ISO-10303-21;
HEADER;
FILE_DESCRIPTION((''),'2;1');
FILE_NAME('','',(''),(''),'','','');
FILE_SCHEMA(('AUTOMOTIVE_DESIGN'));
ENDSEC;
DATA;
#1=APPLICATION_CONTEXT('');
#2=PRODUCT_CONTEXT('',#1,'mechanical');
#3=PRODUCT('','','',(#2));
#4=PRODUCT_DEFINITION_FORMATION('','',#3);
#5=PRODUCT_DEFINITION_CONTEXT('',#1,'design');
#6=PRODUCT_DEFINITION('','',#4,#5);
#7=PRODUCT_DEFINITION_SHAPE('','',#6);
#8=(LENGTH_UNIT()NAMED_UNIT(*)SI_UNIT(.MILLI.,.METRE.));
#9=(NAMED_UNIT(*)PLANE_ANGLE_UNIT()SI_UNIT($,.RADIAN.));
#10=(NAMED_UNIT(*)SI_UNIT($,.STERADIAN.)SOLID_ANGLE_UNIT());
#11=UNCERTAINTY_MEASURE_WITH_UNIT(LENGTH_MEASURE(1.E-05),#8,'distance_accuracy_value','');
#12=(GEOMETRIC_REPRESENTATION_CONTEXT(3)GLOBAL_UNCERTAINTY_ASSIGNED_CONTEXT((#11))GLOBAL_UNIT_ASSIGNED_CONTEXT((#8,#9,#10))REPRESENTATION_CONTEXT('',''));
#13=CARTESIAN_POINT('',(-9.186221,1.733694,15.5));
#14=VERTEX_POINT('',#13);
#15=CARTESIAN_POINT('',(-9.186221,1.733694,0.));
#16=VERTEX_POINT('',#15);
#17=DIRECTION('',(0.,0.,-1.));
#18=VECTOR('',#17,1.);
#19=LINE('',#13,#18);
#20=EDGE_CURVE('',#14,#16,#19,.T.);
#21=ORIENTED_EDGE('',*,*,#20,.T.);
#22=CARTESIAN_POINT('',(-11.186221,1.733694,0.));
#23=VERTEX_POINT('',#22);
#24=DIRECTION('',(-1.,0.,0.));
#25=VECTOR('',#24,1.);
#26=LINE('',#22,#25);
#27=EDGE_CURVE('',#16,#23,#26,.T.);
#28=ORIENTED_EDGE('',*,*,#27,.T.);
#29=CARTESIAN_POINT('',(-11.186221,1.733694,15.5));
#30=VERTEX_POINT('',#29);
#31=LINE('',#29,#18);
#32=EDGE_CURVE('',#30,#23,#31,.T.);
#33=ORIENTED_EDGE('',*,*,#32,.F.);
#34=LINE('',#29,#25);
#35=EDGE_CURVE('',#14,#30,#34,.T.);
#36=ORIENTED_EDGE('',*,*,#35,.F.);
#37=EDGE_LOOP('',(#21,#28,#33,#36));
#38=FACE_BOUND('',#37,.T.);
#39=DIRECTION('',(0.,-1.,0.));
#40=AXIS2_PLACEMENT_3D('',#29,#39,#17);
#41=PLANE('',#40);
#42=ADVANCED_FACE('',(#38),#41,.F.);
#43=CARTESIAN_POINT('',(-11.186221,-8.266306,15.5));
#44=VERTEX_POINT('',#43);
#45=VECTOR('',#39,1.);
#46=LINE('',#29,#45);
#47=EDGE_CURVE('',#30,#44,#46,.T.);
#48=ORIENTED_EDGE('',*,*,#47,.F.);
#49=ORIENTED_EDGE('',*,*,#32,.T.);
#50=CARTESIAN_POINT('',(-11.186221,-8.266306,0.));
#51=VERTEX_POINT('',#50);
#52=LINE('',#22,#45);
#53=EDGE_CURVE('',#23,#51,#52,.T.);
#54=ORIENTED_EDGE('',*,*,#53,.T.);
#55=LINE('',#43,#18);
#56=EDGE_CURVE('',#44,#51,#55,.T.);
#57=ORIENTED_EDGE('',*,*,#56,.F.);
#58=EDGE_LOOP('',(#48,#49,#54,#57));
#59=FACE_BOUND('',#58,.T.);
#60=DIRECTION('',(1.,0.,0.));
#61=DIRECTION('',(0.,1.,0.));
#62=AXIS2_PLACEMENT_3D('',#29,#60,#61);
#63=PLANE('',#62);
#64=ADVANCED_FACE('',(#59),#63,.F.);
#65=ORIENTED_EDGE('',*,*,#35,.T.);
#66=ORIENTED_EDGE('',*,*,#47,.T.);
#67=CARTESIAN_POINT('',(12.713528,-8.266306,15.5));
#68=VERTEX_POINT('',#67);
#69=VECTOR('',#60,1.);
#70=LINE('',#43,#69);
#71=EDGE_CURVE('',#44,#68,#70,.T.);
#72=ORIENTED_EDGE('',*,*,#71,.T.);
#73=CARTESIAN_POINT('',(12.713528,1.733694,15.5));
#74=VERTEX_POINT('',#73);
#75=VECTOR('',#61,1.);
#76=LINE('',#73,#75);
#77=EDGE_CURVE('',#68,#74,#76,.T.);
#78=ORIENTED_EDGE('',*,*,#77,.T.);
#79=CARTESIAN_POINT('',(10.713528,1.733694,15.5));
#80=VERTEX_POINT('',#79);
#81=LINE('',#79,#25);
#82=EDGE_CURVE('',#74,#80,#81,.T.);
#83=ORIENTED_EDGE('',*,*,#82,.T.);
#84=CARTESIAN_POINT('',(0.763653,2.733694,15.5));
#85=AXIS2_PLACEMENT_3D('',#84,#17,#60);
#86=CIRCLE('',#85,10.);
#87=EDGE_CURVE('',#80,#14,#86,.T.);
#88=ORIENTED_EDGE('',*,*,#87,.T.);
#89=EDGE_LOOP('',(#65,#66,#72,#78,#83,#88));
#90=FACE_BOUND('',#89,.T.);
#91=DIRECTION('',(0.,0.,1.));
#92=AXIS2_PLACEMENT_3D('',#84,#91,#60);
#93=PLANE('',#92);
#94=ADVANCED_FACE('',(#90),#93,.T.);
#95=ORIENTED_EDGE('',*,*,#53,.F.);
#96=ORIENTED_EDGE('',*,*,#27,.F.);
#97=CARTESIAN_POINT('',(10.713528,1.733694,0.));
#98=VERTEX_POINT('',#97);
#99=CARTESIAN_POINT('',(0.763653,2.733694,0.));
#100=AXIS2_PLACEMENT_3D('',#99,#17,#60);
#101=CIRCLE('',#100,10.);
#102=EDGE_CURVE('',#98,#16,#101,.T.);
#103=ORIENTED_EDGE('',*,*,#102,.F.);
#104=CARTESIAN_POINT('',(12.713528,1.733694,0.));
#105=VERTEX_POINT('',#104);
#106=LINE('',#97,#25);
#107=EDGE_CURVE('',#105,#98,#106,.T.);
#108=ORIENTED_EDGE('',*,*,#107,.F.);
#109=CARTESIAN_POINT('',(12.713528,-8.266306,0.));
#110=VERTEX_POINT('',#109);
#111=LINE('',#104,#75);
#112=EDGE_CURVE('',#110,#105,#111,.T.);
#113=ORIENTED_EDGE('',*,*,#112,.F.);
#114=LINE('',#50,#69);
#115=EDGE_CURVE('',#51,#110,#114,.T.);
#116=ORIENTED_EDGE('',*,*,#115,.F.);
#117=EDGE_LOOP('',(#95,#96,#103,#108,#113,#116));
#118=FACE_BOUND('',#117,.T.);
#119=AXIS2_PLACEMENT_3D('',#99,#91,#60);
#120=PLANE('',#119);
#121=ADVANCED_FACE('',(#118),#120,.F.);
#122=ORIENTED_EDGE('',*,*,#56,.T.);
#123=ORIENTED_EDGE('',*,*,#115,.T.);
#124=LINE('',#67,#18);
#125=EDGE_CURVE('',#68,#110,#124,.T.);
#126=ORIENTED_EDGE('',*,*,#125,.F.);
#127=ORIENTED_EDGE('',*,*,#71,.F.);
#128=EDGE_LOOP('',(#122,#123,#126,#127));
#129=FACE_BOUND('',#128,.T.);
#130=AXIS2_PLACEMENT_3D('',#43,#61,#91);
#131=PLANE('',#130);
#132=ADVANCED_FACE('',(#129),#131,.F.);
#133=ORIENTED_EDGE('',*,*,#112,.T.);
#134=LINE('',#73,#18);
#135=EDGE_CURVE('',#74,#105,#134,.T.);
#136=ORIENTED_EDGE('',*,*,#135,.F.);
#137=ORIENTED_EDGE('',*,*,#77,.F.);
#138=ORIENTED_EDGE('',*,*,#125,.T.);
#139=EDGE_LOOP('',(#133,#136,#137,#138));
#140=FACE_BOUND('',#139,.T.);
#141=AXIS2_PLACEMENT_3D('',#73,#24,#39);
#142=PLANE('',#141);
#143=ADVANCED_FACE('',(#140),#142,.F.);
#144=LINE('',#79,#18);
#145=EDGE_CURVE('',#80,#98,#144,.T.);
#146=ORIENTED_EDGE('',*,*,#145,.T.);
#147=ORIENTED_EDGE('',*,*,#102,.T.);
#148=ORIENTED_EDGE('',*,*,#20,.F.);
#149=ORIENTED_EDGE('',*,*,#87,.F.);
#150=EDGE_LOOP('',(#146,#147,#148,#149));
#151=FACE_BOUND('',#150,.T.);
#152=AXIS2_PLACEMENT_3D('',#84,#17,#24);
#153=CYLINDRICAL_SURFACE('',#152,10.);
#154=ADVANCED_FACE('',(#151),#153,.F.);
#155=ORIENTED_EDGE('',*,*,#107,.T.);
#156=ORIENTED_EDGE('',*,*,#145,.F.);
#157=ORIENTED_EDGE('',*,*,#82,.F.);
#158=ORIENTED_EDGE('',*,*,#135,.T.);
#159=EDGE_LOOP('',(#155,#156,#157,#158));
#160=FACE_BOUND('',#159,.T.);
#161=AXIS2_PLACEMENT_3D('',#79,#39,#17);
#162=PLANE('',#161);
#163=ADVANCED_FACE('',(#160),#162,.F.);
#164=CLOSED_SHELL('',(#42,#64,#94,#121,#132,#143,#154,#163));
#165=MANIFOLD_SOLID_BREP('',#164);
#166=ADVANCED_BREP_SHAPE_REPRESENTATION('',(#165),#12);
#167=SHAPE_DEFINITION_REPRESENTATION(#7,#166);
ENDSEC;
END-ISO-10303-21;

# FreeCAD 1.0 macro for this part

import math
import FreeCAD as App
import Part
import Sketcher

V = App.Vector
Q = App.Units.Quantity

doc = App.newDocument("Part")
params = doc.addObject("Spreadsheet::Sheet", "Params")
for row, (alias, value) in enumerate([
    ("sketch1_radius", "10 mm"),
    ("sketch1_width", "2 mm"),
    ("sketch1_height", "10 mm"),
    ("pad1_length", "15.5 mm"),
], start=1):
    params.set(f"A{row}", alias)
    params.set(f"B{row}", "=" + value)
    params.setAlias(f"B{row}", alias)

body = doc.addObject("PartDesign::Body", "Body")

sketch1 = body.newObject("Sketcher::SketchObject", "Sketch")
sketch1.AttachmentSupport = (doc.getObject("XY_Plane"), [""])
sketch1.MapMode = "FlatFace"
sketch1.addGeometry([
    Part.LineSegment(V(12.7, 1.7, 0), V(10.7, 1.7, 0)),
    Part.ArcOfCircle(Part.Circle(V(0.8, 2.7, 0), V(0, 0, 1), 10), math.radians(-174), math.radians(-6)),
    Part.LineSegment(V(-9.2, 1.7, 0), V(-11.2, 1.7, 0)),
    Part.LineSegment(V(-11.2, 1.7, 0), V(-11.2, -8.3, 0)),
    Part.LineSegment(V(-11.2, -8.3, 0), V(12.7, -8.3, 0)),
    Part.LineSegment(V(12.7, -8.3, 0), V(12.7, 1.7, 0)),
], False)
sketch1.addConstraint([
    Sketcher.Constraint("Coincident", 0, 2, 1, 2),
    Sketcher.Constraint("Coincident", 1, 1, 2, 1),
    Sketcher.Constraint("Coincident", 2, 2, 3, 1),
    Sketcher.Constraint("Coincident", 3, 2, 4, 1),
    Sketcher.Constraint("Coincident", 4, 2, 5, 1),
    Sketcher.Constraint("Coincident", 5, 2, 0, 1),
    Sketcher.Constraint("Horizontal", 0),
    Sketcher.Constraint("Horizontal", 2),
    Sketcher.Constraint("Vertical", 3),
    Sketcher.Constraint("Horizontal", 4),
    Sketcher.Constraint("Vertical", 5),
    Sketcher.Constraint("Horizontal", 0, 2, 1, 1),
    Sketcher.Constraint("Equal", 0, 2),
    Sketcher.Constraint("Radius", 1, Q("10 mm")),
    Sketcher.Constraint("DistanceX", 0, 2, 0, 1, Q("2 mm")),
    Sketcher.Constraint("DistanceY", 3, 2, 3, 1, Q("10 mm")),
    Sketcher.Constraint("DistanceY", 0, 2, 1, 3, Q("1 mm")),
    Sketcher.Constraint("DistanceX", 1, 1, -1, 1, Q("9.186221 mm")),
    Sketcher.Constraint("DistanceY", -1, 1, 1, 3, Q("2.733694 mm")),
])
sketch1.setExpression("Constraints[13]", "Params.sketch1_radius")
sketch1.setExpression("Constraints[14]", "Params.sketch1_width")
sketch1.setExpression("Constraints[15]", "Params.sketch1_height")
pad1 = body.newObject("PartDesign::Pad", "Pad")
pad1.Profile = sketch1
pad1.setExpression("Length", "Params.pad1_length")

doc.recompute()
